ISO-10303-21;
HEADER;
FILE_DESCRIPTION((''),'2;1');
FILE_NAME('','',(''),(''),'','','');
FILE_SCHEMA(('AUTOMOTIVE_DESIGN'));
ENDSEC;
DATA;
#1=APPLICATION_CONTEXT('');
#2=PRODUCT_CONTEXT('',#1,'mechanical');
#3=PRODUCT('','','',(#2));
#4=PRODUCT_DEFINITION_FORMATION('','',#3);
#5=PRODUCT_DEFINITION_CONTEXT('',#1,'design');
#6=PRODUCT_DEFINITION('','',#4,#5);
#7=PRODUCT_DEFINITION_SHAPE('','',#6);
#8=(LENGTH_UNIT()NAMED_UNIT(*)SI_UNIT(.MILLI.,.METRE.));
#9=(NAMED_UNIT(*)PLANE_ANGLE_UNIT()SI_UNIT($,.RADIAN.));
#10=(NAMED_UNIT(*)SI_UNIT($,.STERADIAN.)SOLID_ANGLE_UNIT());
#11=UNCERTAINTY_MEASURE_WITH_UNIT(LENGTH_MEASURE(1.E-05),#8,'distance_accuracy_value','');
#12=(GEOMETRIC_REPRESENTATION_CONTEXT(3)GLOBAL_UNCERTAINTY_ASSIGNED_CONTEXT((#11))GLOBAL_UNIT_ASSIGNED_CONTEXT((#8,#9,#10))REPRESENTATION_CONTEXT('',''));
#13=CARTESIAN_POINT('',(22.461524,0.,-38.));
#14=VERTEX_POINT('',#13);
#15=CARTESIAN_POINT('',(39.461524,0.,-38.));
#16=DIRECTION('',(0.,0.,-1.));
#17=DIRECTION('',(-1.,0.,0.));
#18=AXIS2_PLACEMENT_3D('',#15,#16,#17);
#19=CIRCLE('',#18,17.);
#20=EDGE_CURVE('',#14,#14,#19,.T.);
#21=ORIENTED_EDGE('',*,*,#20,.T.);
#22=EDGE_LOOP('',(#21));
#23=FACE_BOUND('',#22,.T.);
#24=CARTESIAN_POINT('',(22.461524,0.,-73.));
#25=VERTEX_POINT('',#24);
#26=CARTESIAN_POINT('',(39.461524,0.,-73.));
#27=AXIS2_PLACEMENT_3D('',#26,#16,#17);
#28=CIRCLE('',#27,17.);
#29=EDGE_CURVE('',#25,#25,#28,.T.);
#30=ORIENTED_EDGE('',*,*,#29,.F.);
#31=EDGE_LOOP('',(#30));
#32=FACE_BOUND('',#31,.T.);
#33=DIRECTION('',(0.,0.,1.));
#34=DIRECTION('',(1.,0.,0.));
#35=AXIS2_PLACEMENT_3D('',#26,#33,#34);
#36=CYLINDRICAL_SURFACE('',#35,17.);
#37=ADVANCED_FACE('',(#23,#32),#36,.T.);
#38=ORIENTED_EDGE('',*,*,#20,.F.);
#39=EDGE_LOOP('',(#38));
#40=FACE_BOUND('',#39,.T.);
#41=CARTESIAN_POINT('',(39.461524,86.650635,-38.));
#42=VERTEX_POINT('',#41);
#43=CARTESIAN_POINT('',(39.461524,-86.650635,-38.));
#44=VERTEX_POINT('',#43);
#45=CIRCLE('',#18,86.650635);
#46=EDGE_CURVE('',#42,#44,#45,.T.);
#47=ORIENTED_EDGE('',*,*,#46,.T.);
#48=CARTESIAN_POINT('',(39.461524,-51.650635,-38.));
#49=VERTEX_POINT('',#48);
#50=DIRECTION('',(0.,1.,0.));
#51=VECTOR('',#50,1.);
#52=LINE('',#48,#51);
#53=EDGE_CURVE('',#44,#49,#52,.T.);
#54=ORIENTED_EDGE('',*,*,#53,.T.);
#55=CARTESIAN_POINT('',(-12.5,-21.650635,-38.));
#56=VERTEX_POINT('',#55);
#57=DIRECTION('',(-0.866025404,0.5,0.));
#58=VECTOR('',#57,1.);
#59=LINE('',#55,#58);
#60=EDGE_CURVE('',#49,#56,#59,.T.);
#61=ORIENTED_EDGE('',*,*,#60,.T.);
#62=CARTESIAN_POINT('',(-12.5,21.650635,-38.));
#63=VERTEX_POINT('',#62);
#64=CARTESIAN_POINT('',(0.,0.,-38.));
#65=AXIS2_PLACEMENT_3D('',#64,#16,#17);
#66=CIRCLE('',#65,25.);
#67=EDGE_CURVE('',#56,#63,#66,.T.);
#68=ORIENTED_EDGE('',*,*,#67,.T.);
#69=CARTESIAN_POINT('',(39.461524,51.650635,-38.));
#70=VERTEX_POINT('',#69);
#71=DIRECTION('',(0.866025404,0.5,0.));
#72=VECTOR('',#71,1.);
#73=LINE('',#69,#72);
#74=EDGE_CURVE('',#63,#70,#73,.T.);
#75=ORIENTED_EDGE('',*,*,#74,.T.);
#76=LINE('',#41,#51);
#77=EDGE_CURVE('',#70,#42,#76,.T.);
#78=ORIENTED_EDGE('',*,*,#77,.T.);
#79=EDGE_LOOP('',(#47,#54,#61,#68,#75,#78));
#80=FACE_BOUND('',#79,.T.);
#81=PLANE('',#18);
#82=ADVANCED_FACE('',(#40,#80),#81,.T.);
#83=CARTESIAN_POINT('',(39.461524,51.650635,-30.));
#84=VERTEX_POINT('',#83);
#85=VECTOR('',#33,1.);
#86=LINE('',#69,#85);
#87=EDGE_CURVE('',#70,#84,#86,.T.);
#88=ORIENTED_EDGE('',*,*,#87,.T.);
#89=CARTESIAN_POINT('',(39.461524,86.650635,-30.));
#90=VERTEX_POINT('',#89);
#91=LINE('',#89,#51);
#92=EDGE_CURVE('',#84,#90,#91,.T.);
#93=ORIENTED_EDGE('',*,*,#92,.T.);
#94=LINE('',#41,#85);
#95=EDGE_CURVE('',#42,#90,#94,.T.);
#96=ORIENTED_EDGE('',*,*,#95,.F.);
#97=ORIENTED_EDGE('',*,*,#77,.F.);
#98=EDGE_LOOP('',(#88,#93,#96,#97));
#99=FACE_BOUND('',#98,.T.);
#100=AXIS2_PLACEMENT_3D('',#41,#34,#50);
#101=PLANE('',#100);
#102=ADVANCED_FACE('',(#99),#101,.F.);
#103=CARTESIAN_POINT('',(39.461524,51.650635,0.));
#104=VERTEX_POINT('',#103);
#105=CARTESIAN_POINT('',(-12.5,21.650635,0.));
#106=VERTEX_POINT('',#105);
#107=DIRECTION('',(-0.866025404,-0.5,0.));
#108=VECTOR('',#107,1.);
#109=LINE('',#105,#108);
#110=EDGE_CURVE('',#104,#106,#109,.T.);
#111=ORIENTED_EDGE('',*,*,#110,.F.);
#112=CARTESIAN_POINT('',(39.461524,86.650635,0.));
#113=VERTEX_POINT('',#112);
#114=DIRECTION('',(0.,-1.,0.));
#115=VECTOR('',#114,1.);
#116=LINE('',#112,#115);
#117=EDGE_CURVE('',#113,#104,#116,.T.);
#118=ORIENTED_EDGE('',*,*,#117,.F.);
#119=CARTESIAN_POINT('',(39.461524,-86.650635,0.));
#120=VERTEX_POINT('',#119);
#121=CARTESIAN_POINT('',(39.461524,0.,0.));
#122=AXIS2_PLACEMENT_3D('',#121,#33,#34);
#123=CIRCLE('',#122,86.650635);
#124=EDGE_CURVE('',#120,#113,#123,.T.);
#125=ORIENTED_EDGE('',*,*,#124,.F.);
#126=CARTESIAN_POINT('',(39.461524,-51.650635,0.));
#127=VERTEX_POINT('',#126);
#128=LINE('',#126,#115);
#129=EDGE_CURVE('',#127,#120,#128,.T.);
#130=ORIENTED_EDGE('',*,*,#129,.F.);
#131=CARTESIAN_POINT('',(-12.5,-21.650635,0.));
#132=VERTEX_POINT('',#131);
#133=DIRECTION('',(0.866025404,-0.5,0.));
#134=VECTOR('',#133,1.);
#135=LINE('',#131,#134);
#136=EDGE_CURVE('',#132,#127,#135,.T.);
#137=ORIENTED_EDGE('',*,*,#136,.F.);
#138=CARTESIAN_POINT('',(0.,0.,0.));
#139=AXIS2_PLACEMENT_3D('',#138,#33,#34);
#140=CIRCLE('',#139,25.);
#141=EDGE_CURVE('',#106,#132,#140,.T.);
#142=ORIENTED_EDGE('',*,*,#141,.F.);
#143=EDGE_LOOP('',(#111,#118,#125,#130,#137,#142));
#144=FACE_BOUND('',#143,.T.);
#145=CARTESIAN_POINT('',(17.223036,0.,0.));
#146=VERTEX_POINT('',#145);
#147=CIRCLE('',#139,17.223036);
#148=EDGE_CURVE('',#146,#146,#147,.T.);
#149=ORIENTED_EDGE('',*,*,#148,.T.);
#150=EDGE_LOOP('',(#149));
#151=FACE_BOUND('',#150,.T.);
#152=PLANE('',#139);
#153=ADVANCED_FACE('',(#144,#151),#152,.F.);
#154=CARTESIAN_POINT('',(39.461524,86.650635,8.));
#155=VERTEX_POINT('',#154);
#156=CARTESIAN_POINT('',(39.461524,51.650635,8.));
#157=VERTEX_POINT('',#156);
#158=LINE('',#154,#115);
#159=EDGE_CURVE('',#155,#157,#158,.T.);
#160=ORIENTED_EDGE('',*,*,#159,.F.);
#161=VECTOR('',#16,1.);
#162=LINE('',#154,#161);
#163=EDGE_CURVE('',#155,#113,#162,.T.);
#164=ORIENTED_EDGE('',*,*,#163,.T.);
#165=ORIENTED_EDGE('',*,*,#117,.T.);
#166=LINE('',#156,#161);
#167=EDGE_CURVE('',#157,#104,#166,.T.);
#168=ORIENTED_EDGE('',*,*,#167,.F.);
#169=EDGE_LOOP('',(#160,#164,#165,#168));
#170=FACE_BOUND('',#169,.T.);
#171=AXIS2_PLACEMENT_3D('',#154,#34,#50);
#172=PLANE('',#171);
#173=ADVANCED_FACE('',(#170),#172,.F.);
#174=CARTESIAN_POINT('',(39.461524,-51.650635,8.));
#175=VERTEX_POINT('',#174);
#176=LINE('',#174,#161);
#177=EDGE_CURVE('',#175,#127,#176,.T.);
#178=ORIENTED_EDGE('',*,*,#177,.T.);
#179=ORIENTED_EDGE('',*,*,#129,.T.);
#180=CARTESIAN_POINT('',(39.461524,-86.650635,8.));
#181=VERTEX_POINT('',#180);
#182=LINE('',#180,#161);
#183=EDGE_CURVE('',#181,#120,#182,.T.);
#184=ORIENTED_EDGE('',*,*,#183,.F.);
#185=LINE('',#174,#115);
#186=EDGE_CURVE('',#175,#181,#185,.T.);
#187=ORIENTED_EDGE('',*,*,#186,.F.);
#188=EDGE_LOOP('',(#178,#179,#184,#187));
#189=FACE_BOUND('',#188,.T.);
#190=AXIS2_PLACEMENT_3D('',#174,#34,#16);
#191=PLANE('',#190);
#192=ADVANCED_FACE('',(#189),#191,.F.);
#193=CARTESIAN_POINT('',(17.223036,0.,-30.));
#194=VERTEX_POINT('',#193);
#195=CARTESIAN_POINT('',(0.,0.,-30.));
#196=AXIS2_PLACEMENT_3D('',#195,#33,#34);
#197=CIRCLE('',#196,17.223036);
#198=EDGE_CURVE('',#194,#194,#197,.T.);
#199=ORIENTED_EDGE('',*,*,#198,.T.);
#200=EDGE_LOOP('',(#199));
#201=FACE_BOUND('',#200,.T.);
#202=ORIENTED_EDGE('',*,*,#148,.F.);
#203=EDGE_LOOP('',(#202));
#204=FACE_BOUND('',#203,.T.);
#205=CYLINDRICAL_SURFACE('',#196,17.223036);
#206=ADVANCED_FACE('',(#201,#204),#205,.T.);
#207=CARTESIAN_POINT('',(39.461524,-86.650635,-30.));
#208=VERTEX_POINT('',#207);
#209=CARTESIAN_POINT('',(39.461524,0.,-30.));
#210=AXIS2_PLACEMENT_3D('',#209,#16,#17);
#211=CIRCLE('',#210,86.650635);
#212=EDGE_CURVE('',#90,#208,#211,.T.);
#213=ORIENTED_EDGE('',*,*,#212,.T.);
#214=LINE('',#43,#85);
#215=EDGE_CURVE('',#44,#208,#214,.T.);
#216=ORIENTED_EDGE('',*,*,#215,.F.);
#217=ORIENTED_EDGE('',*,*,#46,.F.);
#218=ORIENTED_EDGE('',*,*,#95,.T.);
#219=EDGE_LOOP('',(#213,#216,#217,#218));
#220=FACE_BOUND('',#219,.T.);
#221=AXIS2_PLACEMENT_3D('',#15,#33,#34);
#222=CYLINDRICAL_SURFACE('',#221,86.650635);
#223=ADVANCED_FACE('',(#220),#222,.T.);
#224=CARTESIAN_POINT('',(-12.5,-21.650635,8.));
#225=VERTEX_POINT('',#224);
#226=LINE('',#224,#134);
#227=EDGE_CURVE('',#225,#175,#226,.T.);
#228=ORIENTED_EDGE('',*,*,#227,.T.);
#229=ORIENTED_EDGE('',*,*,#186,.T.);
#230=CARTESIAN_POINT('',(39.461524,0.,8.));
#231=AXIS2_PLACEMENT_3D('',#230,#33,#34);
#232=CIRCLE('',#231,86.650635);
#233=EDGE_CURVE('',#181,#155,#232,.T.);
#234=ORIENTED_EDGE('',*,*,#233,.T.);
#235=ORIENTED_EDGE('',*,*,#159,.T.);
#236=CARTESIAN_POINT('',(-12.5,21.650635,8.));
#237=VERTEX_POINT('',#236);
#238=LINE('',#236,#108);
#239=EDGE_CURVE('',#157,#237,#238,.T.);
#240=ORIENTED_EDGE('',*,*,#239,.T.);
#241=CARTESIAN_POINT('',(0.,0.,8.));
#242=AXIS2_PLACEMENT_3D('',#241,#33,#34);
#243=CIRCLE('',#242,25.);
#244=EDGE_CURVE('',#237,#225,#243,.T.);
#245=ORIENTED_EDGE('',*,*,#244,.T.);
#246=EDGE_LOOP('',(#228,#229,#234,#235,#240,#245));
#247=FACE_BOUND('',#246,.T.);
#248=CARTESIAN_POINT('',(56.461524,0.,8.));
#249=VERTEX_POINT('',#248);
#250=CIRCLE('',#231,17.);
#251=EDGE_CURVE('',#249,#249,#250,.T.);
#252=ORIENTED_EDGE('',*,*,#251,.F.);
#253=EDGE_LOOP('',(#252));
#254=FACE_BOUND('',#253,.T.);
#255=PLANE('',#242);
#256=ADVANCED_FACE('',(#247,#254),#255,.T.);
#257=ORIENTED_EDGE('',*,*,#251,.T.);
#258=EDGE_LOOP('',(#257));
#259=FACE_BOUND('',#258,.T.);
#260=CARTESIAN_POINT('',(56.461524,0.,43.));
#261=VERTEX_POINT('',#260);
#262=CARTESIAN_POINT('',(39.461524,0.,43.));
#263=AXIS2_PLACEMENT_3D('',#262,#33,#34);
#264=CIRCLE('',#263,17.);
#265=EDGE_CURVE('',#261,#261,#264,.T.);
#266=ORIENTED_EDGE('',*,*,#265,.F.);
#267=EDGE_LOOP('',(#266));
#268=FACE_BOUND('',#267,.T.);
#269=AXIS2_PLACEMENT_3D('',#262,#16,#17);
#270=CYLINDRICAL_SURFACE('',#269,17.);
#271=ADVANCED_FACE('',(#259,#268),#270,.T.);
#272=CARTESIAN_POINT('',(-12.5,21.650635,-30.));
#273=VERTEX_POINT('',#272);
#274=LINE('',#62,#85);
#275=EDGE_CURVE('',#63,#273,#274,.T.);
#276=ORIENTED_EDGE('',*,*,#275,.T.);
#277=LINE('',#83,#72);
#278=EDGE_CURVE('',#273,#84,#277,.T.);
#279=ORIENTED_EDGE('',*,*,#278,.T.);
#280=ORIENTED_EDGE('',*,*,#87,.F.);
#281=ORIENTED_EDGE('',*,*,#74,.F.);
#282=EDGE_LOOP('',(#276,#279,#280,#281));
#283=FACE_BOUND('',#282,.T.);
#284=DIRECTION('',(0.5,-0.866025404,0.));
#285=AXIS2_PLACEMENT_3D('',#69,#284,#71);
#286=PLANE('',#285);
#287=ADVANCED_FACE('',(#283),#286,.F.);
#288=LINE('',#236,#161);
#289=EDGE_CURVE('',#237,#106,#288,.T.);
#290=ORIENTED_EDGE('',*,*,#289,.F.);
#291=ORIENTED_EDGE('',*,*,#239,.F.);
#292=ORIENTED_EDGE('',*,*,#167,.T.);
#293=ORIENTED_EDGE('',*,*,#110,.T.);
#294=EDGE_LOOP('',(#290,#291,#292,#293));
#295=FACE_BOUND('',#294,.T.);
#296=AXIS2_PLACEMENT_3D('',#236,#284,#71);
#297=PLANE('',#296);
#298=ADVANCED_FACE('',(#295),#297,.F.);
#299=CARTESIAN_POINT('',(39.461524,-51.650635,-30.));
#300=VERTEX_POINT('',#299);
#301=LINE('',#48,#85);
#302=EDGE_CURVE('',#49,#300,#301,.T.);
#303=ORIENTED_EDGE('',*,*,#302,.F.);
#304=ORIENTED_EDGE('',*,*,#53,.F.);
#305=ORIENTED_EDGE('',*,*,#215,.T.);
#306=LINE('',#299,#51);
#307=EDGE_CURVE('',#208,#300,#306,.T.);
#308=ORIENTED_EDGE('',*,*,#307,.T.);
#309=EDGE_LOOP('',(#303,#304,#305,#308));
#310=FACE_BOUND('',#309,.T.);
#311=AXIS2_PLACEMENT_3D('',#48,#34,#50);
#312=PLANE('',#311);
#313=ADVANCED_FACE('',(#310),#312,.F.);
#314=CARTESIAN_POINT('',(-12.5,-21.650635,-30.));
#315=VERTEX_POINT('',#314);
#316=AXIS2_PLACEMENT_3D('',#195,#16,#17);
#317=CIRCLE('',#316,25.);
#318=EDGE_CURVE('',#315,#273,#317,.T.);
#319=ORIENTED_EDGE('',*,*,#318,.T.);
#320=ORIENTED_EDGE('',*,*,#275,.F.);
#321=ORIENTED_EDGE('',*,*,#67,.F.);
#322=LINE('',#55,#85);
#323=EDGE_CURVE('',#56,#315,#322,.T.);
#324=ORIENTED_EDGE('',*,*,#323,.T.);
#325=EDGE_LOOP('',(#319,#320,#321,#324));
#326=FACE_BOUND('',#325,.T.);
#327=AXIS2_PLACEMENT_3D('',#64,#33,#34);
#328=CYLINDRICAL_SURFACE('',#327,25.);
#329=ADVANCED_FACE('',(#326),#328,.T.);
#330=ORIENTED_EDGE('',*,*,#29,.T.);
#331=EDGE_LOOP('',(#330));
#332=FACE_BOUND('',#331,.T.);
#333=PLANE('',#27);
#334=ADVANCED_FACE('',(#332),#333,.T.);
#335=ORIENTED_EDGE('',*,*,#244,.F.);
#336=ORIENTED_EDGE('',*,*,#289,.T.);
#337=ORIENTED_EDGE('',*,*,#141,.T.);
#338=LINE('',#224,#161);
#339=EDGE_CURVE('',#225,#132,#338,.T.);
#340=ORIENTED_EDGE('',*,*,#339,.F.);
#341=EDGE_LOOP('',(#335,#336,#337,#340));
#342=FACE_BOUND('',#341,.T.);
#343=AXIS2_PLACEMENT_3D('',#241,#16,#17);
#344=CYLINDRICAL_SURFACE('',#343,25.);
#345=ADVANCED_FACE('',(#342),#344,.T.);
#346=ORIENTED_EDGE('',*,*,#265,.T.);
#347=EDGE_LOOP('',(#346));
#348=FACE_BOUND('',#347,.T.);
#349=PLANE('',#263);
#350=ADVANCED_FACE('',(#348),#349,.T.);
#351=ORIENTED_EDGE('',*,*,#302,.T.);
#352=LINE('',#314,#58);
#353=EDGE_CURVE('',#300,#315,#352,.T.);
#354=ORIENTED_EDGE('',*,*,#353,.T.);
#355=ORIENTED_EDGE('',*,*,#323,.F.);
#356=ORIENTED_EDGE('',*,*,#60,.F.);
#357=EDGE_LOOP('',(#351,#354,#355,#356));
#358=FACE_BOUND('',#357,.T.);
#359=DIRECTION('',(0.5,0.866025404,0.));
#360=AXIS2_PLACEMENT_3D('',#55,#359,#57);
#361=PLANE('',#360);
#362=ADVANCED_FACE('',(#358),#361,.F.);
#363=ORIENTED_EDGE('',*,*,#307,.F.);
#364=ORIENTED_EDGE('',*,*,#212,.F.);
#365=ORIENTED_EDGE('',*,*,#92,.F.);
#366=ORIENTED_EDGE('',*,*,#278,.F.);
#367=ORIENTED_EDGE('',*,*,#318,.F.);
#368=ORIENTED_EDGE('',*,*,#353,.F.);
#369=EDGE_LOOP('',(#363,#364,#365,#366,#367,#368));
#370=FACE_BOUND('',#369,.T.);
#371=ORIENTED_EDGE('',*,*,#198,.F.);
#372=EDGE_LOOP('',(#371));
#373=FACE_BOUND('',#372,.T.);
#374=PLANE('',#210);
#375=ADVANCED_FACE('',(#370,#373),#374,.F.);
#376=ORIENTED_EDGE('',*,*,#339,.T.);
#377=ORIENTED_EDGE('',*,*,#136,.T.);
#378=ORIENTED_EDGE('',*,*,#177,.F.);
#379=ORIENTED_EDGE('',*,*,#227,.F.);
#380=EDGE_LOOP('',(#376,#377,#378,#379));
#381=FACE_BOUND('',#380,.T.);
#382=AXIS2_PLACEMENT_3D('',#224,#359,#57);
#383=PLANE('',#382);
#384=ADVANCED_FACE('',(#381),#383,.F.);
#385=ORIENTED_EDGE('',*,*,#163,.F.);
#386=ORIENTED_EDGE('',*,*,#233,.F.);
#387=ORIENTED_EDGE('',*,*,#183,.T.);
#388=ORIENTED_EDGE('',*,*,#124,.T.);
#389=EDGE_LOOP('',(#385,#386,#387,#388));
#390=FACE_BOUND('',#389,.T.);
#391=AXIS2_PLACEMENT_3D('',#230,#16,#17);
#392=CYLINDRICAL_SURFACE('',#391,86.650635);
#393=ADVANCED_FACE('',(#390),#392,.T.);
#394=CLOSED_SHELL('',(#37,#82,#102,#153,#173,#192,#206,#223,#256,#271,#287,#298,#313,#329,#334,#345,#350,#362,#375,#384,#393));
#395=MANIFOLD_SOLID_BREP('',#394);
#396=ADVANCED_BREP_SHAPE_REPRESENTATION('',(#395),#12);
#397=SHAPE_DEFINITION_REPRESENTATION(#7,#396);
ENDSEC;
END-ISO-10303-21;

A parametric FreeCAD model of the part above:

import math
import FreeCAD as App
import Part
import Sketcher
from FreeCAD import Vector
Q = App.Units.Quantity

doc = App.newDocument("Part")
body = doc.addObject("PartDesign::Body", "Body")

sketch1 = body.newObject("Sketcher::SketchObject", "Sketch")
sketch1.AttachmentSupport = (doc.getObject("XY_Plane"), [""])
sketch1.MapMode = "FlatFace"
sketch1.addGeometry([
    Part.LineSegment(Vector(39, 52, 0), Vector(-12, 22, 0)),
    Part.ArcOfCircle(Part.Circle(Vector(0, 0, 0), Vector(0, 0, 1), 25), math.radians(120), math.radians(240)),
    Part.LineSegment(Vector(-12, -22, 0), Vector(39, -52, 0)),
    Part.LineSegment(Vector(39, -52, 0), Vector(39, -87, 0)),
    Part.ArcOfCircle(Part.Circle(Vector(39, 0, 0), Vector(0, 0, 1), 87), math.radians(-90), math.radians(90)),
    Part.LineSegment(Vector(39, 87, 0), Vector(39, 52, 0)),
], False)
sketch1.addConstraint([
    Sketcher.Constraint("Tangent", 0, 2, 1, 1),
    Sketcher.Constraint("Tangent", 1, 2, 2, 1),
    Sketcher.Constraint("Coincident", 2, 2, 3, 1),
    Sketcher.Constraint("Coincident", 3, 2, 4, 1),
    Sketcher.Constraint("Coincident", 4, 2, 5, 1),
    Sketcher.Constraint("Coincident", 5, 2, 0, 1),
    Sketcher.Constraint("Vertical", 3),
    Sketcher.Constraint("Vertical", 5),
    Sketcher.Constraint("Coincident", 1, 3, -1, 1),
    Sketcher.Constraint("Symmetric", 3, 2, 4, 2, -1),
    Sketcher.Constraint("Vertical", 0, 2, 1, 2),
    Sketcher.Constraint("Vertical", 4, 3, 2, 2),
    Sketcher.Constraint("Radius", 1, Q("25 mm")),
    Sketcher.Constraint("DistanceY", 3, 2, 3, 1, Q("35 mm")),
    Sketcher.Constraint("Angle", 0, Q("-150 deg")),
    Sketcher.Constraint("Distance", 0, Q("60 mm")),
])
pad1 = body.newObject("PartDesign::Pad", "Pad")
pad1.Profile = sketch1
pad1.Length = 8
body2 = doc.addObject("PartDesign::Body", "Body001")

sketch2 = body2.newObject("Sketcher::SketchObject", "Sketch001")
sketch2.AttachmentSupport = (doc.getObject("XY_Plane001"), [""])
sketch2.MapMode = "FlatFace"
sketch2.AttachmentOffset = App.Placement(Vector(0, 0, -30), App.Rotation())
sketch2.addGeometry([
    Part.LineSegment(Vector(39, 52, 0), Vector(39, 87, 0)),
    Part.ArcOfCircle(Part.Circle(Vector(39, 0, 0), Vector(0, 0, 1), 87), math.radians(-90), math.radians(90)),
    Part.LineSegment(Vector(39, -87, 0), Vector(39, -52, 0)),
    Part.LineSegment(Vector(39, -52, 0), Vector(-12, -22, 0)),
    Part.ArcOfCircle(Part.Circle(Vector(0, 0, 0), Vector(0, 0, 1), 25), math.radians(120), math.radians(240)),
    Part.LineSegment(Vector(-12, 22, 0), Vector(39, 52, 0)),
], False)
sketch2.addConstraint([
    Sketcher.Constraint("Coincident", 0, 2, 1, 2),
    Sketcher.Constraint("Coincident", 1, 1, 2, 1),
    Sketcher.Constraint("Coincident", 2, 2, 3, 1),
    Sketcher.Constraint("Tangent", 3, 2, 4, 2),
    Sketcher.Constraint("Tangent", 4, 1, 5, 1),
    Sketcher.Constraint("Coincident", 5, 2, 0, 1),
    Sketcher.Constraint("Vertical", 0),
    Sketcher.Constraint("Vertical", 2),
    Sketcher.Constraint("Coincident", 4, 3, -1, 1),
    Sketcher.Constraint("Symmetric", 0, 2, 1, 1, -1),
    Sketcher.Constraint("Vertical", 1, 3, 0, 2),
    Sketcher.Constraint("Vertical", 3, 2, 4, 1),
    Sketcher.Constraint("Radius", 4, Q("25 mm")),
    Sketcher.Constraint("DistanceY", 0, 1, 0, 2, Q("35 mm")),
    Sketcher.Constraint("Angle", 3, Q("150 deg")),
    Sketcher.Constraint("Distance", 3, Q("60 mm")),
])
pad2 = body2.newObject("PartDesign::Pad", "Pad001")
pad2.Profile = sketch2
pad2.Length = 8
pad2.Reversed = True
body.AllowCompound = True
doc.recompute()

boolean = body.newObject("PartDesign::Boolean", "Boolean")
boolean.Type = "Fuse"
boolean.addObjects([body2])

sketch3 = body.newObject("Sketcher::SketchObject", "Sketch002")
sketch3.AttachmentSupport = (doc.getObject("XY_Plane"), [""])
sketch3.MapMode = "FlatFace"
sketch3.AttachmentOffset = App.Placement(Vector(0, 0, 8), App.Rotation())
sketch3.addGeometry(Part.Circle(Vector(0, 0, 0), Vector(0, 0, 1), 17), False)
sketch3.addConstraint([
    Sketcher.Constraint("Coincident", 0, 3, -1, 1),
    Sketcher.Constraint("Diameter", 0, Q("34.446072 mm")),
])
pad3 = body.newObject("PartDesign::Pad", "Pad002")
pad3.Profile = sketch3
pad3.Length = 38
pad3.Reversed = True

sketch4 = body.newObject("Sketcher::SketchObject", "Sketch003")
sketch4.AttachmentSupport = (doc.getObject("XY_Plane"), [""])
sketch4.MapMode = "FlatFace"
sketch4.AttachmentOffset = App.Placement(Vector(0, 0, 8), App.Rotation())
sketch4.addGeometry(Part.Circle(Vector(39, 0, 0), Vector(0, 0, 1), 17), False)
sketch4.addConstraint([
    Sketcher.Constraint("PointOnObject", 0, 3, -1),
    Sketcher.Constraint("Diameter", 0, Q("34 mm")),
    Sketcher.Constraint("DistanceX", -1, 1, 0, 3, Q("39.461524 mm")),
])
pad4 = body.newObject("PartDesign::Pad", "Pad003")
pad4.Profile = sketch4
pad4.Length = 35

sketch5 = body.newObject("Sketcher::SketchObject", "Sketch004")
sketch5.AttachmentSupport = (doc.getObject("XY_Plane"), [""])
sketch5.MapMode = "FlatFace"
sketch5.AttachmentOffset = App.Placement(Vector(0, 0, -73), App.Rotation())
sketch5.addGeometry(Part.Circle(Vector(39, 0, 0), Vector(0, 0, 1), 17), False)
sketch5.addConstraint([
    Sketcher.Constraint("PointOnObject", 0, 3, -1),
    Sketcher.Constraint("Diameter", 0, Q("34 mm")),
    Sketcher.Constraint("DistanceX", -1, 1, 0, 3, Q("39.461524 mm")),
])
pad5 = body.newObject("PartDesign::Pad", "Pad004")
pad5.Profile = sketch5
pad5.Length = 35

doc.recompute()
